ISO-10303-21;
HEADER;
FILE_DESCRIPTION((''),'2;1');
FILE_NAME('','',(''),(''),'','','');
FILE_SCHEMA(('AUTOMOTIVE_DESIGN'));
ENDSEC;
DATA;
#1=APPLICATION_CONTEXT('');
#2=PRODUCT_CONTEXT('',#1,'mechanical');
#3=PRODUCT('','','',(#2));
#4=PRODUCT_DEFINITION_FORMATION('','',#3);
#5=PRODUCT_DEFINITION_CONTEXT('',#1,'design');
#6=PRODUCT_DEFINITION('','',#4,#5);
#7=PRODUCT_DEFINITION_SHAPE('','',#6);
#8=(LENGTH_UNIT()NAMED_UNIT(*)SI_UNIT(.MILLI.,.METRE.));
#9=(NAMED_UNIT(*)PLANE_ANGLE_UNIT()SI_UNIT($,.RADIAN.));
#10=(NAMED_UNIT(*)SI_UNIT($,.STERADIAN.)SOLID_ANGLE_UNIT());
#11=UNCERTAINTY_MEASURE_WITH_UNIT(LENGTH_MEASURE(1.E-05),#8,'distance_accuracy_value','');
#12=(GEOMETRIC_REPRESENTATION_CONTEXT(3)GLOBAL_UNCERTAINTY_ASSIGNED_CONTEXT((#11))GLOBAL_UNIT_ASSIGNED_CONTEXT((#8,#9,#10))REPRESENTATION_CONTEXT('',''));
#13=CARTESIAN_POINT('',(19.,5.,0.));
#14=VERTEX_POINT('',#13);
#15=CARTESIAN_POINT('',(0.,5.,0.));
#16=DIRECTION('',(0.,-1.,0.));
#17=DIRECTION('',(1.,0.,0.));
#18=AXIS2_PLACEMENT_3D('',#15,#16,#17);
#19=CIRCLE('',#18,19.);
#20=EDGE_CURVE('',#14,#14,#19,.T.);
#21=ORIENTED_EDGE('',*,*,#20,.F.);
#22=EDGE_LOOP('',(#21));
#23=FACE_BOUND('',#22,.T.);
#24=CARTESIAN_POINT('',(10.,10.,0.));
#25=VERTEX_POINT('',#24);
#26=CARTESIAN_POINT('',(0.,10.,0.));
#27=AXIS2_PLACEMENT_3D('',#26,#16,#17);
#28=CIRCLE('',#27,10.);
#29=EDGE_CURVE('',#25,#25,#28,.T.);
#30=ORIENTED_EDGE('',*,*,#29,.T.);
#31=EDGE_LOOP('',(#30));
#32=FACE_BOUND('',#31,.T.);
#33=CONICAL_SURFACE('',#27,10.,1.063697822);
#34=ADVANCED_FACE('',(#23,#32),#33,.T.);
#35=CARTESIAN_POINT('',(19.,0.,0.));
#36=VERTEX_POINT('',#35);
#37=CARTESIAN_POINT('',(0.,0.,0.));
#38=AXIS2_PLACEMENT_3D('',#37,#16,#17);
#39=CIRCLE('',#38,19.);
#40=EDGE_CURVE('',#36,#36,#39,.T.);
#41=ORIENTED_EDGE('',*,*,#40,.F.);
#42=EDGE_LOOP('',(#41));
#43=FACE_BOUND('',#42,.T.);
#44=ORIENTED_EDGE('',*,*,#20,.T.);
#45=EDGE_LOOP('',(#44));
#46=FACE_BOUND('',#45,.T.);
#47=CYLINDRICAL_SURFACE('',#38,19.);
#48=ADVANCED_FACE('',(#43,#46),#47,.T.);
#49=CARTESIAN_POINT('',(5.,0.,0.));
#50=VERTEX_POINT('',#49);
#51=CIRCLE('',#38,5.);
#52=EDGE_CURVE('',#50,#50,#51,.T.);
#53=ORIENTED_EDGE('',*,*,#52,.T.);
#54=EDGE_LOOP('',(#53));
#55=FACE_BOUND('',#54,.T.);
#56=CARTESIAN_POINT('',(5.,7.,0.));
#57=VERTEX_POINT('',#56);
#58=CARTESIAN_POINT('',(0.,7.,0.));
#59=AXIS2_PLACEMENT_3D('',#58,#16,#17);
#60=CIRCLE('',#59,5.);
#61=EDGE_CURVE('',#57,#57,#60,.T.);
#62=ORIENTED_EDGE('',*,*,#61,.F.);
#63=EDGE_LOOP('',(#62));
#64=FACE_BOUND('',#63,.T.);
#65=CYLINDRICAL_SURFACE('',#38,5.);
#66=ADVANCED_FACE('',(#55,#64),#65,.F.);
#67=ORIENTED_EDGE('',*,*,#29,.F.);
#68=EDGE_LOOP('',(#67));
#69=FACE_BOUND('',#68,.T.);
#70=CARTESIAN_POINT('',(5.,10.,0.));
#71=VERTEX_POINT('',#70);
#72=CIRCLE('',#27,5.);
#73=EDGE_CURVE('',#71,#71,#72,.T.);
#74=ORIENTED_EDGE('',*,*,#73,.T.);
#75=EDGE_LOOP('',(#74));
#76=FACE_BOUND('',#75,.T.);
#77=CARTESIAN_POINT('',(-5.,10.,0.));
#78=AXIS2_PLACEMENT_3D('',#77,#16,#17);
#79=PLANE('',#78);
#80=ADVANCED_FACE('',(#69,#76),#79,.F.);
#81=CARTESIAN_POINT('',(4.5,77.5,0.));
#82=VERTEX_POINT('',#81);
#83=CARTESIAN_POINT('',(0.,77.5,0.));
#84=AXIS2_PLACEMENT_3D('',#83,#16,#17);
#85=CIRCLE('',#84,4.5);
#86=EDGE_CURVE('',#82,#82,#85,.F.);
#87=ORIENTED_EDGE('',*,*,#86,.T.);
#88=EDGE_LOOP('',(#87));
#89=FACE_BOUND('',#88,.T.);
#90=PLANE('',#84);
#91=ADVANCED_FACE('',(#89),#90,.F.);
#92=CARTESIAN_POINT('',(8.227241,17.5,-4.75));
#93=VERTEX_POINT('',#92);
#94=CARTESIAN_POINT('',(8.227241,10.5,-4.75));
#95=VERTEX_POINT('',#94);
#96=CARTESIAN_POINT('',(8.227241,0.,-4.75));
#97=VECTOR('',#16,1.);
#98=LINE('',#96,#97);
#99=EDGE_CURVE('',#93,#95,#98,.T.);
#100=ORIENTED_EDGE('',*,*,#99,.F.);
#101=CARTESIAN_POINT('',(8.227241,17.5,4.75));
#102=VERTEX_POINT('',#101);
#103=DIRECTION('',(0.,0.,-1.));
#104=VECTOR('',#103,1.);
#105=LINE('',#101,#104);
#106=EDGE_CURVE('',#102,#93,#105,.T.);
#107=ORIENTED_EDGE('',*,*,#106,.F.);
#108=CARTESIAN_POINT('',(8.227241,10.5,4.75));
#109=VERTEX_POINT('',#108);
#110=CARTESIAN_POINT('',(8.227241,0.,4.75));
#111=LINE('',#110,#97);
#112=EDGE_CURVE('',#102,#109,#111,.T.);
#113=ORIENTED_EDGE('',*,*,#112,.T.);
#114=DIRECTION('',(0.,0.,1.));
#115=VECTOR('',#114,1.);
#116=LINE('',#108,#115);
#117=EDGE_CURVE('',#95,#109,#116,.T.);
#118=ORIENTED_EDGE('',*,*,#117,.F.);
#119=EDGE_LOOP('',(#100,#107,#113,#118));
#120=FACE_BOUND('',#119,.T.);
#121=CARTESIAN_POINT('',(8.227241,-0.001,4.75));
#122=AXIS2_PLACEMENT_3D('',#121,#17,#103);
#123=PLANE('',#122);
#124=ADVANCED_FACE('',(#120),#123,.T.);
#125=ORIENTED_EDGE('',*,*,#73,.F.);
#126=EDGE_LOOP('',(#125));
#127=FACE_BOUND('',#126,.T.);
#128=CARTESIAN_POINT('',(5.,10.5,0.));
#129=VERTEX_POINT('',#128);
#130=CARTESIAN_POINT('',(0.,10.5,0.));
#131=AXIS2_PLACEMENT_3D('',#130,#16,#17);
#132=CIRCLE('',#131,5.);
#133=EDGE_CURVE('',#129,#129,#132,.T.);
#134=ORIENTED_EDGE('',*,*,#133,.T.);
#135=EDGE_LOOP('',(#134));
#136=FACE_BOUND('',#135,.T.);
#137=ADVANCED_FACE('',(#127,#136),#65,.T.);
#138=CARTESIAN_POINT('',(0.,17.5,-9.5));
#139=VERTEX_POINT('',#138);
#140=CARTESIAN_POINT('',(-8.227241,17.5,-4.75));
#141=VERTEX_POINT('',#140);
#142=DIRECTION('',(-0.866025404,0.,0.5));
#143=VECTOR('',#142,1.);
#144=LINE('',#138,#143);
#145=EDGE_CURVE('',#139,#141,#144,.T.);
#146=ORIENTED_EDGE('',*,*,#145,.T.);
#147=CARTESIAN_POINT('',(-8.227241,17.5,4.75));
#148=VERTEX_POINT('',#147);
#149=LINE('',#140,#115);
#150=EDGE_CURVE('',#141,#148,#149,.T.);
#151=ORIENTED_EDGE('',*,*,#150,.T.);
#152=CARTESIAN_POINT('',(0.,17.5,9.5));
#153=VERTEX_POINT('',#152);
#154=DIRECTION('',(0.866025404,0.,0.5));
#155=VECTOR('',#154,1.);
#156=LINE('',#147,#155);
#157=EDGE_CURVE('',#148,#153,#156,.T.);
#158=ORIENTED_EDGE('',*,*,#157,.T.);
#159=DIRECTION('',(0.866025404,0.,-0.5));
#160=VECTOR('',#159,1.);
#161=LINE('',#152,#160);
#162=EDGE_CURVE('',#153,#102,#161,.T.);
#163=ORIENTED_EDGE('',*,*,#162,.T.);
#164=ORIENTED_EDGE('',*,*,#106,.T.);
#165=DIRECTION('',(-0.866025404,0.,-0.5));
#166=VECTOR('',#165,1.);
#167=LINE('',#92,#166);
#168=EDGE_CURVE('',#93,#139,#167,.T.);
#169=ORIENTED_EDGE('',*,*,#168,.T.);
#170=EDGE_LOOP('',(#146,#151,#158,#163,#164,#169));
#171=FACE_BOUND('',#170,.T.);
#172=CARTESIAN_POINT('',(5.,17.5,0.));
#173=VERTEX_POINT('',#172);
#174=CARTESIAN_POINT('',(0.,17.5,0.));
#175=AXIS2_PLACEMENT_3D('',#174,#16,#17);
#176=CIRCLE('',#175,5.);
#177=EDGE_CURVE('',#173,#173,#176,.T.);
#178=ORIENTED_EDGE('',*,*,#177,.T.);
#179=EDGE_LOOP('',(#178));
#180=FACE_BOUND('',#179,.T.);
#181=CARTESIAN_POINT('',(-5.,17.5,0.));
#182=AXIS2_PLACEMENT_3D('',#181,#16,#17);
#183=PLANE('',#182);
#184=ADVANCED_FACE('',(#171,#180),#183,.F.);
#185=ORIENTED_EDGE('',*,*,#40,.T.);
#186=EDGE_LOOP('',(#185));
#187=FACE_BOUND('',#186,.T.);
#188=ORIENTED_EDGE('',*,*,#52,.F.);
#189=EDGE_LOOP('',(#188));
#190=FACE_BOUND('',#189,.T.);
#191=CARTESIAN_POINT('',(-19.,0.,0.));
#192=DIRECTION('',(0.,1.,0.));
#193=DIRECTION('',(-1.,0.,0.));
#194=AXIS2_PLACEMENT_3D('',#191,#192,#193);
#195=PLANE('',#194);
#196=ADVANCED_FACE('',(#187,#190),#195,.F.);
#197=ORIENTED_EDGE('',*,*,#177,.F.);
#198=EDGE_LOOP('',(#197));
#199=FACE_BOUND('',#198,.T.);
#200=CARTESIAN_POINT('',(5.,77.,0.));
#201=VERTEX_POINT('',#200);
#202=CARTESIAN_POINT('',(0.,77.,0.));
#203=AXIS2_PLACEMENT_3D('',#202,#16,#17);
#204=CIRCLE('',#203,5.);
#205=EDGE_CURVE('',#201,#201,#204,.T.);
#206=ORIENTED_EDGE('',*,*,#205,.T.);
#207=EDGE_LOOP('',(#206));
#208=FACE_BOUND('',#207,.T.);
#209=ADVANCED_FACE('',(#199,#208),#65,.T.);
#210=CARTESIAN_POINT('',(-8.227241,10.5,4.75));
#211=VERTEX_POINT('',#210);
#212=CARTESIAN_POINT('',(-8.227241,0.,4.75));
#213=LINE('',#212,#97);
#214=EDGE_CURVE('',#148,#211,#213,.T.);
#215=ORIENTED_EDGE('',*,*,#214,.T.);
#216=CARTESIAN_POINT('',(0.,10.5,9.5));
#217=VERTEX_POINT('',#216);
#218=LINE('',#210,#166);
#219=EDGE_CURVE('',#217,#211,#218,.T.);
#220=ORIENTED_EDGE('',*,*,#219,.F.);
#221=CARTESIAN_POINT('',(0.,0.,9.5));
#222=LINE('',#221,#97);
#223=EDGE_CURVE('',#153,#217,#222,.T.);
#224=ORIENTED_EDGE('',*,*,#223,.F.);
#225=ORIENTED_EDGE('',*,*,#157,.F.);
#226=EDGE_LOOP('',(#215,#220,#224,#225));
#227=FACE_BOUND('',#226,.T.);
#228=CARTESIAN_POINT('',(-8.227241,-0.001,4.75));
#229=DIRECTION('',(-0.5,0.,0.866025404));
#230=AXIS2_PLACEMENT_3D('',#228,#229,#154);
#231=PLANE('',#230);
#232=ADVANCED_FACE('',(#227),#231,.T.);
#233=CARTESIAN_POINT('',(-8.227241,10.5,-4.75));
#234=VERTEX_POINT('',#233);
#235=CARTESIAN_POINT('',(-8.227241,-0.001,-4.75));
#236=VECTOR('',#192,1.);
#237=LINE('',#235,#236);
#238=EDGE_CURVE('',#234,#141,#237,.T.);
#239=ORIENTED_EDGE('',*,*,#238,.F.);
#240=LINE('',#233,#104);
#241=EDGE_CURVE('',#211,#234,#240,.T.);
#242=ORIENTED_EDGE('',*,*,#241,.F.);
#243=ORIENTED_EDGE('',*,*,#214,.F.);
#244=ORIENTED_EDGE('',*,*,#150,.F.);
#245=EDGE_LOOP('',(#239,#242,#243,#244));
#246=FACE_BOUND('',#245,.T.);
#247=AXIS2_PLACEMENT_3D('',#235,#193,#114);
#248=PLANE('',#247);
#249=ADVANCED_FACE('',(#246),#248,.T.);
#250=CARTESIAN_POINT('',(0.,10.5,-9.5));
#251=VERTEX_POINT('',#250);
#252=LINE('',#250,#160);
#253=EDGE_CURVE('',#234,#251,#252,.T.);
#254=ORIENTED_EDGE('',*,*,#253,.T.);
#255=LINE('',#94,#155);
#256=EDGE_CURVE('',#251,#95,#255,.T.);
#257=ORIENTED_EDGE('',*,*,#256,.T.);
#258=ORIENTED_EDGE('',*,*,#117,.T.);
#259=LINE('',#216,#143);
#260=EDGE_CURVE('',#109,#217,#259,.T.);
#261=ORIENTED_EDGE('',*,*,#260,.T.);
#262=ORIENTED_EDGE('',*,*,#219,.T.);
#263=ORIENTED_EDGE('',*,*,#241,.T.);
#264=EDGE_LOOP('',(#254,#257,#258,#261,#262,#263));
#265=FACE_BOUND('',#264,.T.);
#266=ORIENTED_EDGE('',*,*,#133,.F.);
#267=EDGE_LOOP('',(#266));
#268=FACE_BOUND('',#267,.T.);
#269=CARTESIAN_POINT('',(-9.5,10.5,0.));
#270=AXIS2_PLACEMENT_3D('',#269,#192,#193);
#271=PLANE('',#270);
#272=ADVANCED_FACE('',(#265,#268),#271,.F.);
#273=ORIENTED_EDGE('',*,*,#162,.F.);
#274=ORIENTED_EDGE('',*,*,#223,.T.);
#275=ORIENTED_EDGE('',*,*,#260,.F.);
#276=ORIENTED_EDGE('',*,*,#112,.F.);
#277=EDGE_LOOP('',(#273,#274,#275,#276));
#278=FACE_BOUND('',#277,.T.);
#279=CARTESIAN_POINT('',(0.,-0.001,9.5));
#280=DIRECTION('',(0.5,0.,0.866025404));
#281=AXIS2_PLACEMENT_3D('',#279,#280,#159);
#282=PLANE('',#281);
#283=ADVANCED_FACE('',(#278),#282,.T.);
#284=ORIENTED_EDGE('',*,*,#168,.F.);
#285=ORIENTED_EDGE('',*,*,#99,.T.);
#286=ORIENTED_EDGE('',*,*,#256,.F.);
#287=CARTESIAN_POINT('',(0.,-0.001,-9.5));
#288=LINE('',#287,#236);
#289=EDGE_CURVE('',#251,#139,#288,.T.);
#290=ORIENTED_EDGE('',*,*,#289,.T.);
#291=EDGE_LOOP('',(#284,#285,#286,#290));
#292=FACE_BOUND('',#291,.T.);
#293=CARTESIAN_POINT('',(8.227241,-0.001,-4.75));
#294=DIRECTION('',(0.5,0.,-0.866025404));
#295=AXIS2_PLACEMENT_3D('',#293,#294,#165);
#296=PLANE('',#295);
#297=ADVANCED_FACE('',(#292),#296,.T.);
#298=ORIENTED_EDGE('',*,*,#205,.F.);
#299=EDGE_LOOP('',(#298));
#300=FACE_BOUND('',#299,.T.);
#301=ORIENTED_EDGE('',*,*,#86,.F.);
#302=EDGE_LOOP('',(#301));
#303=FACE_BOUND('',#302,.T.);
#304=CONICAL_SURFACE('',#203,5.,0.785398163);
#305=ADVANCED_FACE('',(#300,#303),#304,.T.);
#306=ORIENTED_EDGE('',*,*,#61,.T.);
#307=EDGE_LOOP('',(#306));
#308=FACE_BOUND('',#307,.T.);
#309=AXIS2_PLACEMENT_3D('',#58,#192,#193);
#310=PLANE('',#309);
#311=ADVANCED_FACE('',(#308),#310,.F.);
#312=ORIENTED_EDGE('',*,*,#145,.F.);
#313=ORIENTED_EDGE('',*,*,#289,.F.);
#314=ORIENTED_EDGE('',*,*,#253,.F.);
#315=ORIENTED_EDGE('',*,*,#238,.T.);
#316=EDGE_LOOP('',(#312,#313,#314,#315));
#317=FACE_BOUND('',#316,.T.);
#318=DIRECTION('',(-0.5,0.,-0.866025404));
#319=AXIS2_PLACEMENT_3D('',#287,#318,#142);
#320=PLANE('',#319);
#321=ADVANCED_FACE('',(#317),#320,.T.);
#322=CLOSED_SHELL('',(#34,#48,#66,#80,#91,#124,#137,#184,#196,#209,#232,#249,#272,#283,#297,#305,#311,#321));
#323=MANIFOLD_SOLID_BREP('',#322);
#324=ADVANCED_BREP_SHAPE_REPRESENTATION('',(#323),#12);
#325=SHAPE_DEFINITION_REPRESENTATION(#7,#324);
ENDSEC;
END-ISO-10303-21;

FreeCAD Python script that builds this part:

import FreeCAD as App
import Part
import Sketcher
from FreeCAD import Vector
Q = App.Units.Quantity


def edges_at(feature, points):
    """Names of the edges that pass closest to the given points."""
    edges = feature.Shape.Edges
    near = lambda p: min(range(len(edges)), key=lambda i: edges[i].distToShape(Part.Vertex(*p))[0])
    return sorted({f"Edge{near(p) + 1}" for p in points})

doc = App.newDocument("Part")
body = doc.addObject("PartDesign::Body", "Body")

# Sketch on XY plane
sketch1 = body.newObject("Sketcher::SketchObject", "Sketch")
sketch1.AttachmentSupport = (doc.getObject("XY_Plane"), [""])
sketch1.MapMode = "FlatFace"
sketch1.addGeometry(Part.LineSegment(Vector(0, 77.5, 0), Vector(-5, 77.5, 0)), False)
sketch1.addGeometry(Part.LineSegment(Vector(-5, 77.5, 0), Vector(-5, 17.5, 0)), False)
sketch1.addGeometry(Part.LineSegment(Vector(-5, 17.5, 0), Vector(-9.5, 17.5, 0)), False)
sketch1.addGeometry(Part.LineSegment(Vector(-9.5, 17.5, 0), Vector(-9.5, 10.5, 0)), False)
sketch1.addGeometry(Part.LineSegment(Vector(-9.5, 10.5, 0), Vector(-5, 10.5, 0)), False)
sketch1.addGeometry(Part.LineSegment(Vector(-5, 10.5, 0), Vector(-5, 10, 0)), False)
sketch1.addGeometry(Part.LineSegment(Vector(-5, 10, 0), Vector(-10, 10, 0)), False)
sketch1.addGeometry(Part.LineSegment(Vector(-10, 10, 0), Vector(-19, 5, 0)), False)
sketch1.addGeometry(Part.LineSegment(Vector(-19, 5, 0), Vector(-19, 0, 0)), False)
sketch1.addGeometry(Part.LineSegment(Vector(-19, 0, 0), Vector(-5, 0, 0)), False)
sketch1.addGeometry(Part.LineSegment(Vector(-5, 0, 0), Vector(-5, 7, 0)), False)
sketch1.addGeometry(Part.LineSegment(Vector(-5, 7, 0), Vector(0, 7, 0)), False)
sketch1.addGeometry(Part.LineSegment(Vector(0, 7, 0), Vector(0, 77.5, 0)), False)
sketch1.addConstraint(Sketcher.Constraint("Coincident", 0, 2, 1, 1))
sketch1.addConstraint(Sketcher.Constraint("Coincident", 1, 2, 2, 1))
sketch1.addConstraint(Sketcher.Constraint("Coincident", 2, 2, 3, 1))
sketch1.addConstraint(Sketcher.Constraint("Coincident", 3, 2, 4, 1))
sketch1.addConstraint(Sketcher.Constraint("Coincident", 4, 2, 5, 1))
sketch1.addConstraint(Sketcher.Constraint("Coincident", 5, 2, 6, 1))
sketch1.addConstraint(Sketcher.Constraint("Coincident", 6, 2, 7, 1))
sketch1.addConstraint(Sketcher.Constraint("Coincident", 7, 2, 8, 1))
sketch1.addConstraint(Sketcher.Constraint("Coincident", 8, 2, 9, 1))
sketch1.addConstraint(Sketcher.Constraint("Coincident", 9, 2, 10, 1))
sketch1.addConstraint(Sketcher.Constraint("Coincident", 10, 2, 11, 1))
sketch1.addConstraint(Sketcher.Constraint("Coincident", 11, 2, 12, 1))
sketch1.addConstraint(Sketcher.Constraint("Coincident", 12, 2, 0, 1))
sketch1.addConstraint(Sketcher.Constraint("Horizontal", 0))
sketch1.addConstraint(Sketcher.Constraint("Vertical", 1))
sketch1.addConstraint(Sketcher.Constraint("Horizontal", 2))
sketch1.addConstraint(Sketcher.Constraint("Vertical", 3))
sketch1.addConstraint(Sketcher.Constraint("Horizontal", 4))
sketch1.addConstraint(Sketcher.Constraint("Vertical", 5))
sketch1.addConstraint(Sketcher.Constraint("Horizontal", 6))
sketch1.addConstraint(Sketcher.Constraint("Vertical", 8))
sketch1.addConstraint(Sketcher.Constraint("Horizontal", 9))
sketch1.addConstraint(Sketcher.Constraint("Vertical", 10))
sketch1.addConstraint(Sketcher.Constraint("Horizontal", 11))
sketch1.addConstraint(Sketcher.Constraint("Vertical", 12))
sketch1.addConstraint(Sketcher.Constraint("PointOnObject", 8, 2, -1))
sketch1.addConstraint(Sketcher.Constraint("PointOnObject", 11, 2, -2))
sketch1.addConstraint(Sketcher.Constraint("Vertical", 1, 2, 4, 2))
sketch1.addConstraint(Sketcher.Constraint("Vertical", 5, 2, 9, 2))
sketch1.addConstraint(Sketcher.Constraint("Equal", 0, 6))
sketch1.addConstraint(Sketcher.Constraint("Equal", 11, 8))
sketch1.addConstraint(Sketcher.Constraint("Equal", 3, 10))
sketch1.addConstraint(Sketcher.Constraint("DistanceX", 0, 2, 0, 1, Q("5 mm")))
sketch1.addConstraint(Sketcher.Constraint("DistanceX", 9, 1, 9, 2, Q("14 mm")))
sketch1.addConstraint(Sketcher.Constraint("DistanceY", 1, 2, 1, 1, Q("60 mm")))
sketch1.addConstraint(Sketcher.Constraint("DistanceY", 3, 2, 3, 1, Q("7 mm")))
sketch1.addConstraint(Sketcher.Constraint("DistanceX", 2, 2, 2, 1, Q("4.5 mm")))
sketch1.addConstraint(Sketcher.Constraint("DistanceY", 5, 2, 5, 1, Q("0.5 mm")))
sketch1.addConstraint(Sketcher.Constraint("DistanceY", 12, 1, 12, 2, Q("70.5 mm")))
revolution = body.newObject("PartDesign::Revolution", "Revolution")
revolution.Profile = sketch1
revolution.ReferenceAxis = (sketch1, ["V_Axis"])
revolution.Angle = 360
doc.recompute()

chamfer = body.newObject("PartDesign::Chamfer", "Chamfer")
chamfer.Base = (revolution, edges_at(revolution, [(-5, 77.5, 0)]))
chamfer.Size = 0.5

# Sketch on XZ plane
sketch2 = body.newObject("Sketcher::SketchObject", "Sketch001")
sketch2.AttachmentSupport = (doc.getObject("XZ_Plane"), [""])
sketch2.MapMode = "FlatFace"
sketch2.AttachmentOffset = App.Placement(Vector(0, 0, -10.5), App.Rotation())
sketch2.addGeometry(Part.Circle(Vector(0, 0, 0), Vector(0, 0, 1), 12), False)
sketch2.addGeometry(Part.LineSegment(Vector(-8, -5, 0), Vector(0, -10, 0)), False)
sketch2.addGeometry(Part.LineSegment(Vector(0, -10, 0), Vector(8, -5, 0)), False)
sketch2.addGeometry(Part.LineSegment(Vector(8, -5, 0), Vector(8, 5, 0)), False)
sketch2.addGeometry(Part.LineSegment(Vector(8, 5, 0), Vector(0, 10, 0)), False)
sketch2.addGeometry(Part.LineSegment(Vector(0, 10, 0), Vector(-8, 5, 0)), False)
sketch2.addGeometry(Part.LineSegment(Vector(-8, 5, 0), Vector(-8, -5, 0)), False)
sketch2.addConstraint(Sketcher.Constraint("Coincident", 1, 2, 2, 1))
sketch2.addConstraint(Sketcher.Constraint("Coincident", 2, 2, 3, 1))
sketch2.addConstraint(Sketcher.Constraint("Coincident", 3, 2, 4, 1))
sketch2.addConstraint(Sketcher.Constraint("Coincident", 4, 2, 5, 1))
sketch2.addConstraint(Sketcher.Constraint("Coincident", 5, 2, 6, 1))
sketch2.addConstraint(Sketcher.Constraint("Coincident", 6, 2, 1, 1))
sketch2.addConstraint(Sketcher.Constraint("Vertical", 3))
sketch2.addConstraint(Sketcher.Constraint("Vertical", 6))
sketch2.addConstraint(Sketcher.Constraint("Coincident", 0, 3, -1, 1))
sketch2.addConstraint(Sketcher.Constraint("Symmetric", 1, 2, 4, 2, -1, 1))
sketch2.addConstraint(Sketcher.Constraint("Symmetric", 2, 2, 5, 2, -1, 1))
sketch2.addConstraint(Sketcher.Constraint("PointOnObject", 1, 2, -2))
sketch2.addConstraint(Sketcher.Constraint("Parallel", 1, 4))
sketch2.addConstraint(Sketcher.Constraint("Horizontal", 3, 2, 5, 2))
sketch2.addConstraint(Sketcher.Constraint("Angle", 1, Q("-30 deg")))
sketch2.addConstraint(Sketcher.Constraint("DistanceY", 3, 1, 3, 2, Q("9.5 mm")))
sketch2.addConstraint(Sketcher.Constraint("DistanceY", 1, 2, 4, 2, Q("19 mm")))
sketch2.addConstraint(Sketcher.Constraint("Diameter", 0, Q("24.279547 mm")))
pocket1 = body.newObject("PartDesign::Pocket", "Pocket")
pocket1.Profile = sketch2
pocket1.Length = 7

doc.recompute()
